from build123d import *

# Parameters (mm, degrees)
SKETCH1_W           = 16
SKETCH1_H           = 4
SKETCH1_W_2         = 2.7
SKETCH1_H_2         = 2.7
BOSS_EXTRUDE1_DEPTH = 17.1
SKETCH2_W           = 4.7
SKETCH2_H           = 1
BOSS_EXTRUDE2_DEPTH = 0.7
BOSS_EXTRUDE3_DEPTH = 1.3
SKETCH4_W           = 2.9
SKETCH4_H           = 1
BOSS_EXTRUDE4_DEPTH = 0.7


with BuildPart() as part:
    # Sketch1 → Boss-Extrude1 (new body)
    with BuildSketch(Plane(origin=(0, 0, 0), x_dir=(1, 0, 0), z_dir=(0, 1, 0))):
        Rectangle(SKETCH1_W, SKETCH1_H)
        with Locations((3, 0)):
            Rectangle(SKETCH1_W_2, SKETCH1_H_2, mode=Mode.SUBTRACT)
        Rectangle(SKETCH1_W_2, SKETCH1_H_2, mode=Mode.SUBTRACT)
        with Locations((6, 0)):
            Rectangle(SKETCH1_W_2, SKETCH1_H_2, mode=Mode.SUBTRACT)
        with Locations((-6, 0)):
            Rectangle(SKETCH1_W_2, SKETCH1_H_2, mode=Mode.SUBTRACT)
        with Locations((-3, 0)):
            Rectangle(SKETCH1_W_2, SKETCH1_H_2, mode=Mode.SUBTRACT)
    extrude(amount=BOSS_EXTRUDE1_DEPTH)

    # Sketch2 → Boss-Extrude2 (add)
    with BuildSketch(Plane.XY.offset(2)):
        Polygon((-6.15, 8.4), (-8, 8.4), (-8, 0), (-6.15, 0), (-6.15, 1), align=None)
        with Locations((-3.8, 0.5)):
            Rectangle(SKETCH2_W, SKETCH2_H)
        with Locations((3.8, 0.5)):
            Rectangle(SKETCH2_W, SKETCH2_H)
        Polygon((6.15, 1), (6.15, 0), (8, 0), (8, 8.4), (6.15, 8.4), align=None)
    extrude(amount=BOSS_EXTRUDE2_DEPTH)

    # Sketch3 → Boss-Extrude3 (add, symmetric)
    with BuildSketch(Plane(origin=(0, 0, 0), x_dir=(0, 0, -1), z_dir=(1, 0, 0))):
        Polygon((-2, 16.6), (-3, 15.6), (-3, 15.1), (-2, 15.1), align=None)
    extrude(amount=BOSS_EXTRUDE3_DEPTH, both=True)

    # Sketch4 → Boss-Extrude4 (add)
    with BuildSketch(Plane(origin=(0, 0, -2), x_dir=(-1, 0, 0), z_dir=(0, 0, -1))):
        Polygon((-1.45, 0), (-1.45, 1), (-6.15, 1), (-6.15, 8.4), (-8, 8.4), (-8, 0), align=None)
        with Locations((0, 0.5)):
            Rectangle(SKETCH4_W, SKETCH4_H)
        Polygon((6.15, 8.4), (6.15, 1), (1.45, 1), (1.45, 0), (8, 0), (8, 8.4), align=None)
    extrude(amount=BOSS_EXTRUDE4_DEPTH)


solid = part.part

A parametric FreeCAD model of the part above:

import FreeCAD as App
import Part
import Sketcher
Q = App.Units.Quantity


def add_polygon(sketch, points):
    """Adds a closed chain of lines whose ends are joined by coincident constraints."""
    first, n = sketch.GeometryCount, len(points)
    for a, b in zip(points, points[1:] + points[:1]):
        sketch.addGeometry(Part.LineSegment(App.Vector(*a, 0), App.Vector(*b, 0)), False)
    for i in range(n):
        sketch.addConstraint(Sketcher.Constraint("Coincident", first + i, 2, first + (i + 1) % n, 1))

doc = App.newDocument("Part")
params = doc.addObject("Spreadsheet::Sheet", "Params")
for row, (alias, value) in enumerate([
    ("sketch1_width", "16 mm"),
    ("sketch1_height", "4 mm"),
    ("sketch1_width2", "2.7 mm"),
    ("pad1_length", "17.1 mm"),
    ("sketch2_height", "1 mm"),
    ("sketch2_width", "4.7 mm"),
    ("sketch2_height2", "8.4 mm"),
    ("sketch2_width2", "1.85 mm"),
    ("pad2_length", "0.7 mm"),
    ("sketch3_height", "1 mm"),
    ("sketch3_width", "0.5 mm"),
    ("pad3_length", "2.6 mm"),
    ("sketch4_width", "16 mm"),
    ("sketch4_width2", "12.3 mm"),
    ("sketch4_height", "7.4 mm"),
    ("sketch4_height2", "8.4 mm"),
    ("pad4_length", "0.7 mm"),
], start=1):
    params.set(f"A{row}", alias)
    params.set(f"B{row}", "=" + value)
    params.setAlias(f"B{row}", alias)

body = doc.addObject("PartDesign::Body", "Body")

sketch1 = doc.addObject("Sketcher::SketchObject", "Sketch")
body.addObject(sketch1)
sketch1.AttachmentSupport = (doc.XZ_Plane, [""])
sketch1.MapMode = "FlatFace"
add_polygon(sketch1, [(-8, -2), (-8, 2), (8, 2), (8, -2)])
add_polygon(sketch1, [(-4.7, 1.4), (-7.3, 1.4), (-7.3, -1.4), (-4.7, -1.4)])
add_polygon(sketch1, [(-1.6, 1.4), (-4.3, 1.4), (-4.3, -1.4), (-1.6, -1.4)])
add_polygon(sketch1, [(1.4, 1.4), (-1.4, 1.4), (-1.4, -1.4), (1.4, -1.4)])
add_polygon(sketch1, [(4.3, 1.4), (1.6, 1.4), (1.6, -1.4), (4.3, -1.4)])
add_polygon(sketch1, [(7.3, 1.4), (4.7, 1.4), (4.7, -1.4), (7.3, -1.4)])
sketch1.addConstraint([
    Sketcher.Constraint("Vertical", 0),
    Sketcher.Constraint("Horizontal", 1),
    Sketcher.Constraint("Vertical", 2),
    Sketcher.Constraint("Horizontal", 3),
    Sketcher.Constraint("Horizontal", 4),
    Sketcher.Constraint("Vertical", 5),
    Sketcher.Constraint("Horizontal", 6),
    Sketcher.Constraint("Vertical", 7),
    Sketcher.Constraint("Horizontal", 8),
    Sketcher.Constraint("Vertical", 9),
    Sketcher.Constraint("Horizontal", 10),
    Sketcher.Constraint("Vertical", 11),
    Sketcher.Constraint("Horizontal", 12),
    Sketcher.Constraint("Vertical", 13),
    Sketcher.Constraint("Horizontal", 14),
    Sketcher.Constraint("Vertical", 15),
    Sketcher.Constraint("Horizontal", 16),
    Sketcher.Constraint("Vertical", 17),
    Sketcher.Constraint("Horizontal", 18),
    Sketcher.Constraint("Vertical", 19),
    Sketcher.Constraint("Horizontal", 20),
    Sketcher.Constraint("Vertical", 21),
    Sketcher.Constraint("Horizontal", 22),
    Sketcher.Constraint("Vertical", 23),
    Sketcher.Constraint("Symmetric", 0, 2, 2, 2, -1, 1),
    Sketcher.Constraint("Symmetric", 12, 2, 14, 2, -1, 1),
    Sketcher.Constraint("Symmetric", 10, 2, 16, 2, -1, 1),
    Sketcher.Constraint("Symmetric", 8, 2, 18, 2, -1, 1),
    Sketcher.Constraint("Symmetric", 6, 2, 20, 2, -1, 1),
    Sketcher.Constraint("Symmetric", 4, 2, 22, 2, -1, 1),
    Sketcher.Constraint("Horizontal", 7, 2, 8, 2),
    Sketcher.Constraint("Horizontal", 6, 2, 9, 2),
    Sketcher.Constraint("Horizontal", 11, 2, 12, 2),
    Sketcher.Constraint("Horizontal", 10, 2, 13, 2),
    Sketcher.Constraint("Equal", 6, 8),
    Sketcher.Constraint("Equal", 10, 12),
    Sketcher.Constraint("Equal", 22, 5),
    Sketcher.Constraint("DistanceX", 1, 1, 1, 2, 16.0),
    Sketcher.Constraint("DistanceY", 0, 1, 0, 2, 4.0),
    Sketcher.Constraint("DistanceX", 4, 2, 4, 1, 2.7),
    Sketcher.Constraint("DistanceX", 4, 2, 8, 2, 3.0),
    Sketcher.Constraint("DistanceX", 8, 2, 12, 2, 3.0),
])
sketch1.setExpression("Constraints[61]", "Params.sketch1_width")
sketch1.setExpression("Constraints[62]", "Params.sketch1_height")
sketch1.setExpression("Constraints[63]", "Params.sketch1_width2")
pad1 = doc.addObject("PartDesign::Pad", "Pad")
body.addObject(pad1)
pad1.Profile = sketch1
pad1.setExpression("Length", "Params.pad1_length")
pad1.Reversed = True

sketch2 = doc.addObject("Sketcher::SketchObject", "Sketch001")
body.addObject(sketch2)
sketch2.AttachmentSupport = (doc.XY_Plane, [""])
sketch2.MapMode = "FlatFace"
sketch2.AttachmentOffset = App.Placement(App.Vector(0, 0, 2), App.Rotation())
add_polygon(sketch2, [(-6.2, 8.4), (-8, 8.4), (-8, 0), (-1.4, 0), (-1.4, 1), (-6.2, 1)])
add_polygon(sketch2, [(1.4, 1), (1.4, 0), (8, 0), (8, 8.4), (6.2, 8.4), (6.2, 1)])
sketch2.addConstraint([
    Sketcher.Constraint("Horizontal", 0),
    Sketcher.Constraint("Vertical", 1),
    Sketcher.Constraint("Horizontal", 2),
    Sketcher.Constraint("Vertical", 3),
    Sketcher.Constraint("Horizontal", 4),
    Sketcher.Constraint("Vertical", 5),
    Sketcher.Constraint("Vertical", 6),
    Sketcher.Constraint("Horizontal", 7),
    Sketcher.Constraint("Vertical", 8),
    Sketcher.Constraint("Horizontal", 9),
    Sketcher.Constraint("Vertical", 10),
    Sketcher.Constraint("Horizontal", 11),
    Sketcher.Constraint("Symmetric", 2, 2, 6, 2, -1, 1),
    Sketcher.Constraint("Symmetric", 1, 2, 7, 2, -2),
    Sketcher.Constraint("Symmetric", 5, 2, 9, 2, -2),
    Sketcher.Constraint("Horizontal", 4, 2, 10, 2),
    Sketcher.Constraint("DistanceY", 3, 1, 3, 2, 1.0),
    Sketcher.Constraint("DistanceX", 4, 2, 4, 1, 4.7),
    Sketcher.Constraint("DistanceY", 1, 2, 1, 1, 8.4),
    Sketcher.Constraint("DistanceX", 0, 2, -1, 1, 8.0),
    Sketcher.Constraint("DistanceX", 0, 2, 0, 1, 1.85),
])
sketch2.setExpression("Constraints[28]", "Params.sketch2_height")
sketch2.setExpression("Constraints[29]", "Params.sketch2_width")
sketch2.setExpression("Constraints[30]", "Params.sketch2_height2")
sketch2.setExpression("Constraints[32]", "Params.sketch2_width2")
pad2 = doc.addObject("PartDesign::Pad", "Pad001")
body.addObject(pad2)
pad2.Profile = sketch2
pad2.setExpression("Length", "Params.pad2_length")

sketch3 = doc.addObject("Sketcher::SketchObject", "Sketch002")
body.addObject(sketch3)
sketch3.AttachmentSupport = (doc.YZ_Plane, [""])
sketch3.MapMode = "FlatFace"
add_polygon(sketch3, [(16.6, 2), (15.6, 3), (15.1, 3), (15.1, 2)])
sketch3.addConstraint([
    Sketcher.Constraint("Horizontal", 1),
    Sketcher.Constraint("Vertical", 2),
    Sketcher.Constraint("Horizontal", 3),
    Sketcher.Constraint("DistanceY", 2, 2, 2, 1, 1.0),
    Sketcher.Constraint("Angle", 0, Q("135 deg")),
    Sketcher.Constraint("DistanceX", 1, 2, 1, 1, 0.5),
    Sketcher.Constraint("DistanceY", -1, 1, 0, 2, 3.0),
    Sketcher.Constraint("DistanceX", -1, 1, 0, 2, 15.6),
])
sketch3.setExpression("Constraints[7]", "Params.sketch3_height")
sketch3.setExpression("Constraints[9]", "Params.sketch3_width")
pad3 = doc.addObject("PartDesign::Pad", "Pad002")
body.addObject(pad3)
pad3.Profile = sketch3
pad3.setExpression("Length", "Params.pad3_length")
pad3.Midplane = True

sketch4 = doc.addObject("Sketcher::SketchObject", "Sketch003")
body.addObject(sketch4)
sketch4.AttachmentSupport = (doc.XY_Plane, [""])
sketch4.MapMode = "FlatFace"
sketch4.AttachmentOffset = App.Placement(App.Vector(0, 0, -2), App.Rotation())
add_polygon(sketch4, [(6.2, 1), (6.2, 8.4), (8, 8.4), (8, 0), (-8, 0), (-8, 8.4), (-6.2, 8.4), (-6.2, 1)])
sketch4.addConstraint([
    Sketcher.Constraint("Vertical", 0),
    Sketcher.Constraint("Horizontal", 1),
    Sketcher.Constraint("Vertical", 2),
    Sketcher.Constraint("Horizontal", 3),
    Sketcher.Constraint("Vertical", 4),
    Sketcher.Constraint("Horizontal", 5),
    Sketcher.Constraint("Vertical", 6),
    Sketcher.Constraint("Horizontal", 7),
    Sketcher.Constraint("Symmetric", 2, 2, 3, 2, -1, 1),
    Sketcher.Constraint("Symmetric", 0, 2, 5, 2, -2),
    Sketcher.Constraint("DistanceX", 3, 2, 3, 1, 16.0),
    Sketcher.Constraint("DistanceX", 7, 1, 7, 2, 12.3),
    Sketcher.Constraint("DistanceY", 0, 1, 0, 2, 7.4),
    Sketcher.Constraint("DistanceY", 2, 2, 2, 1, 8.4),
])
sketch4.setExpression("Constraints[18]", "Params.sketch4_width")
sketch4.setExpression("Constraints[19]", "Params.sketch4_width2")
sketch4.setExpression("Constraints[20]", "Params.sketch4_height")
sketch4.setExpression("Constraints[21]", "Params.sketch4_height2")
pad4 = doc.addObject("PartDesign::Pad", "Pad003")
body.addObject(pad4)
pad4.Profile = sketch4
pad4.setExpression("Length", "Params.pad4_length")
pad4.Reversed = True

doc.recompute()
